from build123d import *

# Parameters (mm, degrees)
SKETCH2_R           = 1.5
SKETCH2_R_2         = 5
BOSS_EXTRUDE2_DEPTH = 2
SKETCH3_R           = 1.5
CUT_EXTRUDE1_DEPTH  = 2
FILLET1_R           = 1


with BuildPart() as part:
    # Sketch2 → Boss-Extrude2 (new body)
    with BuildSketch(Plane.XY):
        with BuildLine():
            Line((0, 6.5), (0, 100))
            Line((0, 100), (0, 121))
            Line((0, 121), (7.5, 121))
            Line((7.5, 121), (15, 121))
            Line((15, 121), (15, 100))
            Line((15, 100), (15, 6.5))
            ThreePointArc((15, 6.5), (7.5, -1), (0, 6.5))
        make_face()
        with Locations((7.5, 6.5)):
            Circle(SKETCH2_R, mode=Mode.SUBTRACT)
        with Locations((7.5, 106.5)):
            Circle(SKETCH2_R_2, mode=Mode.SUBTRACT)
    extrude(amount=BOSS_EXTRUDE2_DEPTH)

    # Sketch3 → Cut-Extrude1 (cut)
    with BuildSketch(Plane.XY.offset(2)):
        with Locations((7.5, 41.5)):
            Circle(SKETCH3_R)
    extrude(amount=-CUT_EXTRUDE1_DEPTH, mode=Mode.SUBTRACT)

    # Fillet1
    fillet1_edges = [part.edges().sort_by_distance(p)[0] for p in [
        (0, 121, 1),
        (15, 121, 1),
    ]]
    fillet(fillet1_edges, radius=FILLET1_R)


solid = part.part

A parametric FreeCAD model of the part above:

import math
import FreeCAD as App
import Part
import Sketcher
from FreeCAD import Vector


def edges_at(feature, points):
    """Names of the edges that pass closest to the given points."""
    edges = feature.Shape.Edges
    near = lambda p: min(range(len(edges)), key=lambda i: edges[i].distToShape(Part.Vertex(*p))[0])
    return sorted({f"Edge{near(p) + 1}" for p in points})

doc = App.newDocument("Part")
params = doc.addObject("Spreadsheet::Sheet", "Params")
for row, (alias, value) in enumerate([
    ("sketch1_diameter", "3 mm"),
    ("sketch1_diameter2", "10 mm"),
    ("sketch1_radius", "7.5 mm"),
    ("sketch1_height", "114.5 mm"),
    ("pad1_length", "2 mm"),
    ("sketch2_diameter", "3 mm"),
    ("pocket1_length", "2 mm"),
    ("fillet_radius", "1 mm"),
], start=1):
    params.set(f"A{row}", alias)
    params.set(f"B{row}", "=" + value)
    params.setAlias(f"B{row}", alias)

body = doc.addObject("PartDesign::Body", "Body")

# Sketch on XY plane
sketch1 = body.newObject("Sketcher::SketchObject", "Sketch")
sketch1.AttachmentSupport = (doc.getObject("XY_Plane"), [""])
sketch1.MapMode = "FlatFace"
sketch1.addGeometry(Part.LineSegment(Vector(0, 121, 0), Vector(0, 6.5, 0)), False)
sketch1.addGeometry(Part.ArcOfCircle(Part.Circle(Vector(7.5, 6.5, 0), Vector(0, 0, 1), 7.5), math.radians(180), math.radians(360)), False)
sketch1.addGeometry(Part.LineSegment(Vector(15, 6.5, 0), Vector(15, 121, 0)), False)
sketch1.addGeometry(Part.LineSegment(Vector(15, 121, 0), Vector(0, 121, 0)), False)
sketch1.addGeometry(Part.Circle(Vector(7.5, 6.5, 0), Vector(0, 0, 1), 1.5), False)
sketch1.addGeometry(Part.Circle(Vector(7.5, 106.5, 0), Vector(0, 0, 1), 5), False)
sketch1.addConstraint(Sketcher.Constraint("Tangent", 0, 2, 1, 1))
sketch1.addConstraint(Sketcher.Constraint("Tangent", 1, 2, 2, 1))
sketch1.addConstraint(Sketcher.Constraint("Coincident", 2, 2, 3, 1))
sketch1.addConstraint(Sketcher.Constraint("Coincident", 3, 2, 0, 1))
sketch1.addConstraint(Sketcher.Constraint("Vertical", 0))
sketch1.addConstraint(Sketcher.Constraint("Vertical", 2))
sketch1.addConstraint(Sketcher.Constraint("Horizontal", 3))
sketch1.addConstraint(Sketcher.Constraint("Coincident", 4, 3, 1, 3))
sketch1.addConstraint(Sketcher.Constraint("PointOnObject", 0, 2, -2))
sketch1.addConstraint(Sketcher.Constraint("Vertical", 4, 3, 5, 3))
sketch1.addConstraint(Sketcher.Constraint("Diameter", 4, 3.0))
sketch1.addConstraint(Sketcher.Constraint("Diameter", 5, 10.0))
sketch1.addConstraint(Sketcher.Constraint("Radius", 1, 7.5))
sketch1.addConstraint(Sketcher.Constraint("DistanceY", 0, 2, 0, 1, 114.5))
sketch1.addConstraint(Sketcher.Constraint("DistanceY", -1, 1, 2, 2, 121.0))
sketch1.addConstraint(Sketcher.Constraint("DistanceY", 1, 3, 5, 3, 100.0))
sketch1.setExpression("Constraints[10]", "Params.sketch1_diameter")
sketch1.setExpression("Constraints[11]", "Params.sketch1_diameter2")
sketch1.setExpression("Constraints[12]", "Params.sketch1_radius")
sketch1.setExpression("Constraints[13]", "Params.sketch1_height")
pad1 = body.newObject("PartDesign::Pad", "Pad")
pad1.Profile = sketch1
pad1.setExpression("Length", "Params.pad1_length")

# Sketch on XY plane
sketch2 = body.newObject("Sketcher::SketchObject", "Sketch001")
sketch2.AttachmentSupport = (doc.getObject("XY_Plane"), [""])
sketch2.MapMode = "FlatFace"
sketch2.AttachmentOffset = App.Placement(Vector(0, 0, 2), App.Rotation())
sketch2.addGeometry(Part.Circle(Vector(7.5, 41.5, 0), Vector(0, 0, 1), 1.5), False)
sketch2.addConstraint(Sketcher.Constraint("Diameter", 0, 3.0))
sketch2.addConstraint(Sketcher.Constraint("DistanceX", -1, 1, 0, 3, 7.5))
sketch2.addConstraint(Sketcher.Constraint("DistanceY", -1, 1, 0, 3, 41.5))
sketch2.setExpression("Constraints[0]", "Params.sketch2_diameter")
pocket1 = body.newObject("PartDesign::Pocket", "Pocket")
pocket1.Profile = sketch2
pocket1.setExpression("Length", "Params.pocket1_length")
doc.recompute()

fillet = body.newObject("PartDesign::Fillet", "Fillet")
fillet.Base = (pocket1, edges_at(pocket1, [(0, 121, 1), (15, 121, 1)]))
fillet.setExpression("Radius", "Params.fillet_radius")

doc.recompute()
